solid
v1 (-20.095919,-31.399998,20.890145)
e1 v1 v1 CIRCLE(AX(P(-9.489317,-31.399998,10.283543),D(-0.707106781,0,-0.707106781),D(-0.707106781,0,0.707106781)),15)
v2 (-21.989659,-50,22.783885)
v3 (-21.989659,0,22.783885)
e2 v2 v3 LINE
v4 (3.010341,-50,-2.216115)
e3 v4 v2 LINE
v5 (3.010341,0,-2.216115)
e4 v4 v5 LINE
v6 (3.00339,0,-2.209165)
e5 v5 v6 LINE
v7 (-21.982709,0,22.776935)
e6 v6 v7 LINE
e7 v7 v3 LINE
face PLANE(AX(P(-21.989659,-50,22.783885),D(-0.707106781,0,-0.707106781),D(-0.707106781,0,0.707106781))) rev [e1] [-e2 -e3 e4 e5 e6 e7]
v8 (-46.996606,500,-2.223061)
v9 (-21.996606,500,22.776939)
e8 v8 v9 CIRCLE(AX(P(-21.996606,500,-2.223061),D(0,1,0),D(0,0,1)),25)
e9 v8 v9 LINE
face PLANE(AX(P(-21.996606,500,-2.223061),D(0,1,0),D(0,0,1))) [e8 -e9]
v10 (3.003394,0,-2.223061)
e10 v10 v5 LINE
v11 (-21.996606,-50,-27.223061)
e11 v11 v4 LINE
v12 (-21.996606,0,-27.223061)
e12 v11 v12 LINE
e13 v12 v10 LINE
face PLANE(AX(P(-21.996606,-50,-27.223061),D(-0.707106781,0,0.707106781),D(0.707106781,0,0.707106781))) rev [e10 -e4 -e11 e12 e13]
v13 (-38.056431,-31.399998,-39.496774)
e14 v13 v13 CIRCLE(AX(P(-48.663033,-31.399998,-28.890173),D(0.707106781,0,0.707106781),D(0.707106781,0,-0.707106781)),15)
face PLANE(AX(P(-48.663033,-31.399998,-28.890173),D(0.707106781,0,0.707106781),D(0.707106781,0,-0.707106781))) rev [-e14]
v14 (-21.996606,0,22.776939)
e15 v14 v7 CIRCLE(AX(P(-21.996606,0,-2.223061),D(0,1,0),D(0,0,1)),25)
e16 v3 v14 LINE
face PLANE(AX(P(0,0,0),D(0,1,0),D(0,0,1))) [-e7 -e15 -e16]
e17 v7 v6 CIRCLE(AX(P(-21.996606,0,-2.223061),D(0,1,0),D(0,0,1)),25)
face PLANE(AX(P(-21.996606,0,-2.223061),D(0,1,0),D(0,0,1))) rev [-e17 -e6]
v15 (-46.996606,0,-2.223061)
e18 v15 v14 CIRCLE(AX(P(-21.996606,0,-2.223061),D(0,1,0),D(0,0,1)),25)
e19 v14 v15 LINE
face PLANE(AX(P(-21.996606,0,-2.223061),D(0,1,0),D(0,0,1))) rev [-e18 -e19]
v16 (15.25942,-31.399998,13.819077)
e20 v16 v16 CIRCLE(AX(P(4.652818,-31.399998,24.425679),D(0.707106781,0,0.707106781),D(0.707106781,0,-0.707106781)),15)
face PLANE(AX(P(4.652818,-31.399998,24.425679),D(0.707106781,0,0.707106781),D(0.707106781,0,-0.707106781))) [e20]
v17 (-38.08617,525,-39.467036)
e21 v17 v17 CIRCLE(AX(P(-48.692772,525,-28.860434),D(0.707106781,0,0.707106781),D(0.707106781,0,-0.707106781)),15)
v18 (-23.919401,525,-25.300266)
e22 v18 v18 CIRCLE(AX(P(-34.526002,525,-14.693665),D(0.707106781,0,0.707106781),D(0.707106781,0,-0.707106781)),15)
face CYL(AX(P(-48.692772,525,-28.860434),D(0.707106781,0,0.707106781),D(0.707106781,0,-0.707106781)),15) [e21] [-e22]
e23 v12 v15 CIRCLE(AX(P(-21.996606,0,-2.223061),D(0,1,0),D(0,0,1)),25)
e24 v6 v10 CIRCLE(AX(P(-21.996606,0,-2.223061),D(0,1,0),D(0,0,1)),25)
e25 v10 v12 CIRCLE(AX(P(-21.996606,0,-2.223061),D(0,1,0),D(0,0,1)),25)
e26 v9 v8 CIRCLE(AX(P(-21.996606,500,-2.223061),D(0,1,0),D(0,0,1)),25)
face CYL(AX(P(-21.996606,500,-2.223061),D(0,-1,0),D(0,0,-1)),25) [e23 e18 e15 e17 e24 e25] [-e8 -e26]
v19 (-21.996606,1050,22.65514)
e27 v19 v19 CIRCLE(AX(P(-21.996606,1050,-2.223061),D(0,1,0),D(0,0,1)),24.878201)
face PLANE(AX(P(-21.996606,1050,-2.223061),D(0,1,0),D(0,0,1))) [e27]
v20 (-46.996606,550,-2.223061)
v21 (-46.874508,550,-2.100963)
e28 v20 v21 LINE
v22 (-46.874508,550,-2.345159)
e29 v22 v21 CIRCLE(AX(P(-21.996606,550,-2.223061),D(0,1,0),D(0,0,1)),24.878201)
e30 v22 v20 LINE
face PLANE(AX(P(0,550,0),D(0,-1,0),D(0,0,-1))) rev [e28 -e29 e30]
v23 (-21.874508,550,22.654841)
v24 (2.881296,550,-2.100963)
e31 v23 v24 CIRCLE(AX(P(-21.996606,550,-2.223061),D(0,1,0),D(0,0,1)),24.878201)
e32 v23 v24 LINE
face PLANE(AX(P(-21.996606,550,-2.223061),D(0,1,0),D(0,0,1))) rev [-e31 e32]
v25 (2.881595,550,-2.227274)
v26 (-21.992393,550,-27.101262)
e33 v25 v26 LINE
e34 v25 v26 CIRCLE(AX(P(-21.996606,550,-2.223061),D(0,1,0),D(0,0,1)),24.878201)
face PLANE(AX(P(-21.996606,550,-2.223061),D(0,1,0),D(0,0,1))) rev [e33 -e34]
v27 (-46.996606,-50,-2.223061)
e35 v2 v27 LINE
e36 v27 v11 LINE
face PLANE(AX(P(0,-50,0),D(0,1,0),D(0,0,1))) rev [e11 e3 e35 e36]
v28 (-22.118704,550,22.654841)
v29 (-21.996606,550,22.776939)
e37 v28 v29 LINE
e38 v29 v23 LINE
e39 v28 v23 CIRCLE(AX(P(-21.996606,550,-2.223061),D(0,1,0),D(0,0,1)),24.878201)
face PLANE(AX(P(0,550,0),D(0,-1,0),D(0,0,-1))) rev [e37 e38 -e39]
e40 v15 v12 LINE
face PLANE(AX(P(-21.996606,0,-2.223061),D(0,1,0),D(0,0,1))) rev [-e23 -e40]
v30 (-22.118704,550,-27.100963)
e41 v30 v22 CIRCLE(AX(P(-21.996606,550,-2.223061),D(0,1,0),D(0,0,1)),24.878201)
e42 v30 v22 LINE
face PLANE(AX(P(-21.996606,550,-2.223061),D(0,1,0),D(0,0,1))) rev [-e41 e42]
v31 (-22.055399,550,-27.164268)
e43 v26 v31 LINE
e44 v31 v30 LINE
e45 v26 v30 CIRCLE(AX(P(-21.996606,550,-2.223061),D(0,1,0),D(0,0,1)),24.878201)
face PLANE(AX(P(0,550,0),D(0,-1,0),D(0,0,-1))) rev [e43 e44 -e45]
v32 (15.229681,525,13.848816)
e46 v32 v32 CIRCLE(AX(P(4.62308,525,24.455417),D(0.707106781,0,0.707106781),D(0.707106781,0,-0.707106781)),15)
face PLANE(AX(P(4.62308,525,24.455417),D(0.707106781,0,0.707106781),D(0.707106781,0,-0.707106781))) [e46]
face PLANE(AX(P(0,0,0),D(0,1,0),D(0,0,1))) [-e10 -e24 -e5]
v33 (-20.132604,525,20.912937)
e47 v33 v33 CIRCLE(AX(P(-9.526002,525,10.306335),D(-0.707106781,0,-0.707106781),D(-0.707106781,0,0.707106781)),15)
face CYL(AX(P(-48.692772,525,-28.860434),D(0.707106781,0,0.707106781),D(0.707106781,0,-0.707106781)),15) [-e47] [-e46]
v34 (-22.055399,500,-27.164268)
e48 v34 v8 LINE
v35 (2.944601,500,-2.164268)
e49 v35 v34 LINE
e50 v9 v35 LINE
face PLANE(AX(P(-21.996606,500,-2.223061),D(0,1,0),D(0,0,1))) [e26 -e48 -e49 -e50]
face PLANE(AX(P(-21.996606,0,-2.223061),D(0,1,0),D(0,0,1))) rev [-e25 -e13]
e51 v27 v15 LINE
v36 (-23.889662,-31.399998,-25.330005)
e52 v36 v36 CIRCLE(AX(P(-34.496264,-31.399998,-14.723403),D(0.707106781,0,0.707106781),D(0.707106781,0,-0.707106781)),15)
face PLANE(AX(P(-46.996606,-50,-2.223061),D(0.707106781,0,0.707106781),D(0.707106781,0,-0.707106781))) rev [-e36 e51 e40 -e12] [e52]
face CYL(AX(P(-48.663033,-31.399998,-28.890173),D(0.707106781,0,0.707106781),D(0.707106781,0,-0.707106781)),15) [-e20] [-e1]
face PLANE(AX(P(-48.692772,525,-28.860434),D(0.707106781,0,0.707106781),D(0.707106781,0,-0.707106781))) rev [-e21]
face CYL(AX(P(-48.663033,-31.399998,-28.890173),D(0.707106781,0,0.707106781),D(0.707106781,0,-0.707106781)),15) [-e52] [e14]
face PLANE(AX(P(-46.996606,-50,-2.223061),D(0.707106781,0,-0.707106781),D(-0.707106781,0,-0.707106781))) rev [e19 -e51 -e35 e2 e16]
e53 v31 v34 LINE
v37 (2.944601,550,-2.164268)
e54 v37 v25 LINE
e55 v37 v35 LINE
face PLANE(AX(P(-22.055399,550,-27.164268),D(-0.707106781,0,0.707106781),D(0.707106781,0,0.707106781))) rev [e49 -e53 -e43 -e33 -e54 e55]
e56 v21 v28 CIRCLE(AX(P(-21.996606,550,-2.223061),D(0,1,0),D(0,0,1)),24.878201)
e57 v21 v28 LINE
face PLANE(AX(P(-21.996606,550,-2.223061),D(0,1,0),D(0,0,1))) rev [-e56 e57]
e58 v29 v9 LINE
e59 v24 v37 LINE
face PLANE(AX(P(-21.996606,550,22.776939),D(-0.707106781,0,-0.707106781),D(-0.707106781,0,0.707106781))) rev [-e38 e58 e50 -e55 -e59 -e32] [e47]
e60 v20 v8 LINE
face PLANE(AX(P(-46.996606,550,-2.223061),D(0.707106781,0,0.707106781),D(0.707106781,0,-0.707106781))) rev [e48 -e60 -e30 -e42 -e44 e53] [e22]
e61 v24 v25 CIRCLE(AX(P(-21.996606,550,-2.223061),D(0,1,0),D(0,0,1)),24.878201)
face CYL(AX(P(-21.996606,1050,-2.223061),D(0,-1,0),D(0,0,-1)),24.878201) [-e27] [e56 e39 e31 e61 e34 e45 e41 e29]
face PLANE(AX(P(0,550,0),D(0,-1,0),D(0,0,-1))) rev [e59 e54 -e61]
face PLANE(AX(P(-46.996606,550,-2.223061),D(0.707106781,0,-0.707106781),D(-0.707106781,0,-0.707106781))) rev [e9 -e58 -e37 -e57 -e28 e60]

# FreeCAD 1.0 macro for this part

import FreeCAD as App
import Part
import Sketcher
from FreeCAD import Vector
Q = App.Units.Quantity

doc = App.newDocument("Part")
body = doc.addObject("PartDesign::Body", "Body")

sketch1 = body.newObject("Sketcher::SketchObject", "Sketch")
sketch1.AttachmentSupport = (doc.getObject("XZ_Plane"), [""])
sketch1.MapMode = "FlatFace"
sketch1.addGeometry(Part.Circle(Vector(-22, -2, 0), Vector(0, 0, 1), 25), False)
sketch1.addConstraint(Sketcher.Constraint("Diameter", 0, Q("50 mm")))
sketch1.addConstraint(Sketcher.Constraint("DistanceY", 0, 3, -1, 1, Q("2.223061 mm")))
sketch1.addConstraint(Sketcher.Constraint("DistanceX", 0, 3, -1, 1, Q("21.996606 mm")))
pad1 = body.newObject("PartDesign::Pad", "Pad")
pad1.Profile = sketch1
pad1.Length = 500
pad1.Reversed = True

sketch2 = body.newObject("Sketcher::SketchObject", "Sketch001")
sketch2.AttachmentSupport = (doc.getObject("XZ_Plane"), [""])
sketch2.MapMode = "FlatFace"
sketch2.AttachmentOffset = App.Placement(Vector(0, 0, -500), App.Rotation())
sketch2.addGeometry(Part.LineSegment(Vector(-47, -2, 0), Vector(-22, 23, 0)), False)
sketch2.addGeometry(Part.LineSegment(Vector(-22, 23, 0), Vector(3, -2, 0)), False)
sketch2.addGeometry(Part.LineSegment(Vector(3, -2, 0), Vector(-22, -27, 0)), False)
sketch2.addGeometry(Part.LineSegment(Vector(-22, -27, 0), Vector(-47, -2, 0)), False)
sketch2.addConstraint(Sketcher.Constraint("Coincident", 0, 2, 1, 1))
sketch2.addConstraint(Sketcher.Constraint("Coincident", 1, 2, 2, 1))
sketch2.addConstraint(Sketcher.Constraint("Coincident", 2, 2, 3, 1))
sketch2.addConstraint(Sketcher.Constraint("Coincident", 3, 2, 0, 1))
sketch2.addConstraint(Sketcher.Constraint("Perpendicular", 0, 1))
sketch2.addConstraint(Sketcher.Constraint("Perpendicular", 1, 2))
sketch2.addConstraint(Sketcher.Constraint("Perpendicular", 2, 3))
sketch2.addConstraint(Sketcher.Constraint("Angle", 0, Q("45 deg")))
sketch2.addConstraint(Sketcher.Constraint("DistanceX", 2, 2, 1, 2, Q("25 mm")))
sketch2.addConstraint(Sketcher.Constraint("DistanceX", -1, 1, 1, 2, Q("2.944601 mm")))
sketch2.addConstraint(Sketcher.Constraint("DistanceY", -1, 1, 0, 2, Q("22.776939 mm")))
sketch2.addConstraint(Sketcher.Constraint("Distance", 1, Q("35.272193 mm")))
pad2 = body.newObject("PartDesign::Pad", "Pad001")
pad2.Profile = sketch2
pad2.Length = 50
pad2.Reversed = True

sketch3 = body.newObject("Sketcher::SketchObject", "Sketch002")
sketch3.AttachmentSupport = (doc.getObject("XZ_Plane"), [""])
sketch3.MapMode = "FlatFace"
sketch3.addGeometry(Part.LineSegment(Vector(-47, -2, 0), Vector(-22, -27, 0)), False)
sketch3.addGeometry(Part.LineSegment(Vector(-22, -27, 0), Vector(3, -2, 0)), False)
sketch3.addGeometry(Part.LineSegment(Vector(3, -2, 0), Vector(-22, 23, 0)), False)
sketch3.addGeometry(Part.LineSegment(Vector(-22, 23, 0), Vector(-47, -2, 0)), False)
sketch3.addConstraint(Sketcher.Constraint("Coincident", 0, 2, 1, 1))
sketch3.addConstraint(Sketcher.Constraint("Coincident", 1, 2, 2, 1))
sketch3.addConstraint(Sketcher.Constraint("Coincident", 2, 2, 3, 1))
sketch3.addConstraint(Sketcher.Constraint("Coincident", 3, 2, 0, 1))
sketch3.addConstraint(Sketcher.Constraint("Perpendicular", 0, 1))
sketch3.addConstraint(Sketcher.Constraint("Perpendicular", 1, 2))
sketch3.addConstraint(Sketcher.Constraint("Perpendicular", 2, 3))
sketch3.addConstraint(Sketcher.Constraint("Angle", 0, Q("-45 deg")))
sketch3.addConstraint(Sketcher.Constraint("DistanceX", 2, 2, 1, 2, Q("25 mm")))
sketch3.addConstraint(Sketcher.Constraint("DistanceY", 0, 2, -1, 1, Q("27.223061 mm")))
sketch3.addConstraint(Sketcher.Constraint("DistanceX", -1, 1, 1, 2, Q("3.010341 mm")))
sketch3.addConstraint(Sketcher.Constraint("Distance", 1, Q("35.365163 mm")))
pad3 = body.newObject("PartDesign::Pad", "Pad002")
pad3.Profile = sketch3
pad3.Length = 50

sketch4 = body.newObject("Sketcher::SketchObject", "Sketch003")
sketch4.Placement = App.Placement(Vector(0.397113, 0, 0.397113), App.Rotation(Vector(0.707106781, 0, -0.707106781), Vector(0, 0.999999999, 0), Vector(0.707106781, 0, 0.707106781), "ZXY"))
sketch4.addGeometry(Part.Circle(Vector(-14, -31, 0), Vector(0, 0, 1), 15), False)
sketch4.addGeometry(Part.Circle(Vector(-14, 525, 0), Vector(0, 0, 1), 15), False)
sketch4.addConstraint(Sketcher.Constraint("Equal", 0, 1))
sketch4.addConstraint(Sketcher.Constraint("Diameter", 0, Q("30 mm")))
sketch4.addConstraint(Sketcher.Constraint("DistanceY", -1, 1, 1, 3, Q("524.999999 mm")))
sketch4.addConstraint(Sketcher.Constraint("DistanceY", 0, 3, -1, 1, Q("31.399998 mm")))
sketch4.addConstraint(Sketcher.Constraint("DistanceX", 1, 3, -1, 1, Q("14.023581 mm")))
sketch4.addConstraint(Sketcher.Constraint("DistanceX", 0, 3, -1, 1, Q("13.981524 mm")))
pad4 = body.newObject("PartDesign::Pad", "Pad003")
pad4.Profile = sketch4
pad4.Type = "TwoLengths"
pad4.Length = 20
pad4.Length2 = 55.4

sketch5 = body.newObject("Sketcher::SketchObject", "Sketch004")
sketch5.AttachmentSupport = (doc.getObject("XZ_Plane"), [""])
sketch5.MapMode = "FlatFace"
sketch5.AttachmentOffset = App.Placement(Vector(0, 0, -550), App.Rotation())
sketch5.addGeometry(Part.Circle(Vector(-22, -2, 0), Vector(0, 0, 1), 25), False)
sketch5.addConstraint(Sketcher.Constraint("Diameter", 0, Q("49.756403 mm")))
sketch5.addConstraint(Sketcher.Constraint("DistanceY", 0, 3, -1, 1, Q("2.223061 mm")))
sketch5.addConstraint(Sketcher.Constraint("DistanceX", 0, 3, -1, 1, Q("21.996606 mm")))
pad5 = body.newObject("PartDesign::Pad", "Pad004")
pad5.Profile = sketch5
pad5.Length = 500
pad5.Reversed = True

doc.recompute()
